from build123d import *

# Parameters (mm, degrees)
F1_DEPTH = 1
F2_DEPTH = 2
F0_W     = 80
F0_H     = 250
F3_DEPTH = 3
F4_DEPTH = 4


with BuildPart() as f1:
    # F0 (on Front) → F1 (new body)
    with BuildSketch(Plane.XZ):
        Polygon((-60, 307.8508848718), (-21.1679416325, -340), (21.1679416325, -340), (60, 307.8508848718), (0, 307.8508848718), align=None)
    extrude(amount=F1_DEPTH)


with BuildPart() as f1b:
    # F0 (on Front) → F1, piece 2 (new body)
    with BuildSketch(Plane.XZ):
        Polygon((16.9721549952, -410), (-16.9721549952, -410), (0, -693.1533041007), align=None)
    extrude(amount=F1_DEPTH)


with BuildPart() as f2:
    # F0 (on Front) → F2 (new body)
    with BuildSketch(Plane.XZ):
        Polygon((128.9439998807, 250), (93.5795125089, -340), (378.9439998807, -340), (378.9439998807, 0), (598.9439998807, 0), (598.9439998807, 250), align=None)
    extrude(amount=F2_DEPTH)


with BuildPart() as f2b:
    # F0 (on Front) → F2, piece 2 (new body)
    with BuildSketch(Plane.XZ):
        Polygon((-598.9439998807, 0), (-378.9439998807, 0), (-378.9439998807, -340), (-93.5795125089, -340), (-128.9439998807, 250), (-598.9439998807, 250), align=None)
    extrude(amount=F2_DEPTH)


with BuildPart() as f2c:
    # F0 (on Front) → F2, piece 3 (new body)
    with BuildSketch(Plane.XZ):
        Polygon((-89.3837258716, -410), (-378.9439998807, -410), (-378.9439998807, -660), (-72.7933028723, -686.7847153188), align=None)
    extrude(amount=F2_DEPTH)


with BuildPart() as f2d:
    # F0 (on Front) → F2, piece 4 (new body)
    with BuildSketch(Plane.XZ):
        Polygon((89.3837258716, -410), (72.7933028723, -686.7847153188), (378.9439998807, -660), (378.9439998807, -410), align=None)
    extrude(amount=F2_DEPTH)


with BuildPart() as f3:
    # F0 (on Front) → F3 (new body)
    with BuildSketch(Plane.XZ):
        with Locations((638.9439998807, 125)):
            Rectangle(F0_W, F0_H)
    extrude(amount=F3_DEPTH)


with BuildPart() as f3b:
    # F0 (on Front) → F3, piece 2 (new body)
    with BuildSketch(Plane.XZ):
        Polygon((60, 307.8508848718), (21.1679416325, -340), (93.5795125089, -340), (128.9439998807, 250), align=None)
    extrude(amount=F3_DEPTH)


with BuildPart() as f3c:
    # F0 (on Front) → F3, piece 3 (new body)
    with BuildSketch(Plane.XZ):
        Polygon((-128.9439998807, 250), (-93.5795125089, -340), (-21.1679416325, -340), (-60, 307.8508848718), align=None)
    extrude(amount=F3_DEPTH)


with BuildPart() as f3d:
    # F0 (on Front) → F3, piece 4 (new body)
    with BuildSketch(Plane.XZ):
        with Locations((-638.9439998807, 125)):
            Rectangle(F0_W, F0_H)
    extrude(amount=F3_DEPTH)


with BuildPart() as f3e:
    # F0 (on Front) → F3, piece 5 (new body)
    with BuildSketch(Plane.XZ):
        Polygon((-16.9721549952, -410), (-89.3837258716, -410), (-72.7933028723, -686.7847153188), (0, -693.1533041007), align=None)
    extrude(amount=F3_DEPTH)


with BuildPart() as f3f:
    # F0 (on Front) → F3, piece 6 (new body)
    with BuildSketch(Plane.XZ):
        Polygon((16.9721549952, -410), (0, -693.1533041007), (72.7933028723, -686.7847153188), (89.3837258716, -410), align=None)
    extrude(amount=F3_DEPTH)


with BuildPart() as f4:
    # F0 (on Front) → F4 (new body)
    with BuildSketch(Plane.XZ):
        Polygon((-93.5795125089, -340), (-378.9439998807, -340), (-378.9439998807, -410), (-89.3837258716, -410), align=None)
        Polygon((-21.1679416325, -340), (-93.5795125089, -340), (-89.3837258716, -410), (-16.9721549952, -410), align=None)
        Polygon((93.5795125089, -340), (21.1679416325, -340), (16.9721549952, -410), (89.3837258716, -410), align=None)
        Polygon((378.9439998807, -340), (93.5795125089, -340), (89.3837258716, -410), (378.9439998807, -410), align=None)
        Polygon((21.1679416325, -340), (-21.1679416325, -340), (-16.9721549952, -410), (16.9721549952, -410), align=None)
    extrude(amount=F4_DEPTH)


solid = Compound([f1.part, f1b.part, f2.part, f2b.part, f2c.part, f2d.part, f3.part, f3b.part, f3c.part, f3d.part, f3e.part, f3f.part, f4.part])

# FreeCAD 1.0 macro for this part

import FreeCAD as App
import Part
import Sketcher
from FreeCAD import Vector
Q = App.Units.Quantity

doc = App.newDocument("Part")
body = doc.addObject("PartDesign::Body", "Body")

# Sketch on XZ plane
sketch1 = body.newObject("Sketcher::SketchObject", "Sketch")
sketch1.AttachmentSupport = (doc.getObject("XZ_Plane"), [""])
sketch1.MapMode = "FlatFace"
sketch1.addGeometry([
    Part.LineSegment(Vector(-60, 308, 0), Vector(-21, -340, 0)),
    Part.LineSegment(Vector(-21, -340, 0), Vector(21, -340, 0)),
    Part.LineSegment(Vector(21, -340, 0), Vector(60, 308, 0)),
    Part.LineSegment(Vector(60, 308, 0), Vector(-60, 308, 0)),
], False)
sketch1.addConstraint([
    Sketcher.Constraint("Coincident", 0, 2, 1, 1),
    Sketcher.Constraint("Coincident", 1, 2, 2, 1),
    Sketcher.Constraint("Coincident", 2, 2, 3, 1),
    Sketcher.Constraint("Coincident", 3, 2, 0, 1),
    Sketcher.Constraint("Horizontal", 1),
    Sketcher.Constraint("Horizontal", 3),
    Sketcher.Constraint("Equal", 0, 2),
    Sketcher.Constraint("DistanceX", 3, 2, 3, 1, Q("120 mm")),
    Sketcher.Constraint("DistanceY", 0, 2, -1, 1, Q("340 mm")),
    Sketcher.Constraint("DistanceX", -1, 1, 2, 2, Q("60 mm")),
    Sketcher.Constraint("DistanceX", 1, 1, 1, 2, Q("42.335883 mm")),
    Sketcher.Constraint("Distance", 0, Q("649.013635 mm")),
])
pad1 = body.newObject("PartDesign::Pad", "Pad")
pad1.Profile = sketch1
pad1.Length = 1
body2 = doc.addObject("PartDesign::Body", "Body001")

# Sketch on XZ plane
sketch2 = body2.newObject("Sketcher::SketchObject", "Sketch001")
sketch2.AttachmentSupport = (doc.getObject("XZ_Plane001"), [""])
sketch2.MapMode = "FlatFace"
sketch2.addGeometry([
    Part.LineSegment(Vector(17, -410, 0), Vector(-17, -410, 0)),
    Part.LineSegment(Vector(-17, -410, 0), Vector(0, -693, 0)),
    Part.LineSegment(Vector(0, -693, 0), Vector(17, -410, 0)),
], False)
sketch2.addConstraint([
    Sketcher.Constraint("Coincident", 0, 2, 1, 1),
    Sketcher.Constraint("Coincident", 1, 2, 2, 1),
    Sketcher.Constraint("Coincident", 2, 2, 0, 1),
    Sketcher.Constraint("Horizontal", 0),
    Sketcher.Constraint("PointOnObject", 1, 2, -2),
    Sketcher.Constraint("Equal", 1, 2),
    Sketcher.Constraint("DistanceY", 0, 2, -1, 1, Q("410 mm")),
    Sketcher.Constraint("Distance", 1, Q("283.661502 mm")),
    Sketcher.Constraint("DistanceX", 0, 2, 0, 1, Q("33.94431 mm")),
])
pad2 = body2.newObject("PartDesign::Pad", "Pad001")
pad2.Profile = sketch2
pad2.Length = 1
body3 = doc.addObject("PartDesign::Body", "Body002")

# Sketch on XZ plane
sketch3 = body3.newObject("Sketcher::SketchObject", "Sketch002")
sketch3.AttachmentSupport = (doc.getObject("XZ_Plane002"), [""])
sketch3.MapMode = "FlatFace"
sketch3.addGeometry([
    Part.LineSegment(Vector(129, 250, 0), Vector(94, -340, 0)),  # 0
    Part.LineSegment(Vector(94, -340, 0), Vector(379, -340, 0)),  # 1
    Part.LineSegment(Vector(379, -340, 0), Vector(379, 0, 0)),  # 2
    Part.LineSegment(Vector(379, 0, 0), Vector(599, 0, 0)),  # 3
    Part.LineSegment(Vector(599, 0, 0), Vector(599, 250, 0)),  # 4
    Part.LineSegment(Vector(599, 250, 0), Vector(129, 250, 0)),  # 5
], False)
sketch3.addConstraint([
    Sketcher.Constraint("Coincident", 0, 2, 1, 1),
    Sketcher.Constraint("Coincident", 1, 2, 2, 1),
    Sketcher.Constraint("Coincident", 2, 2, 3, 1),
    Sketcher.Constraint("Coincident", 3, 2, 4, 1),
    Sketcher.Constraint("Coincident", 4, 2, 5, 1),
    Sketcher.Constraint("Coincident", 5, 2, 0, 1),
    Sketcher.Constraint("Horizontal", 1),
    Sketcher.Constraint("Vertical", 2),
    Sketcher.Constraint("Horizontal", 3),
    Sketcher.Constraint("Vertical", 4),
    Sketcher.Constraint("Horizontal", 5),
    Sketcher.Constraint("PointOnObject", 2, 2, -1),
    Sketcher.Constraint("DistanceX", 3, 1, 3, 2, Q("220 mm")),
    Sketcher.Constraint("DistanceX", 5, 2, 5, 1, Q("470 mm")),
    Sketcher.Constraint("DistanceY", 2, 1, 2, 2, Q("340 mm")),
    Sketcher.Constraint("DistanceY", 4, 1, 4, 2, Q("250 mm")),
    Sketcher.Constraint("DistanceX", -1, 1, 1, 2, Q("378.944 mm")),
    Sketcher.Constraint("Distance", 0, Q("591.05892 mm")),
])
pad3 = body3.newObject("PartDesign::Pad", "Pad002")
pad3.Profile = sketch3
pad3.Length = 2
body4 = doc.addObject("PartDesign::Body", "Body003")

# Sketch on XZ plane
sketch4 = body4.newObject("Sketcher::SketchObject", "Sketch003")
sketch4.AttachmentSupport = (doc.getObject("XZ_Plane003"), [""])
sketch4.MapMode = "FlatFace"
sketch4.addGeometry([
    Part.LineSegment(Vector(-599, 0, 0), Vector(-379, 0, 0)),  # 0
    Part.LineSegment(Vector(-379, 0, 0), Vector(-379, -340, 0)),  # 1
    Part.LineSegment(Vector(-379, -340, 0), Vector(-94, -340, 0)),  # 2
    Part.LineSegment(Vector(-94, -340, 0), Vector(-129, 250, 0)),  # 3
    Part.LineSegment(Vector(-129, 250, 0), Vector(-599, 250, 0)),  # 4
    Part.LineSegment(Vector(-599, 250, 0), Vector(-599, 0, 0)),  # 5
], False)
sketch4.addConstraint([
    Sketcher.Constraint("Coincident", 0, 2, 1, 1),
    Sketcher.Constraint("Coincident", 1, 2, 2, 1),
    Sketcher.Constraint("Coincident", 2, 2, 3, 1),
    Sketcher.Constraint("Coincident", 3, 2, 4, 1),
    Sketcher.Constraint("Coincident", 4, 2, 5, 1),
    Sketcher.Constraint("Coincident", 5, 2, 0, 1),
    Sketcher.Constraint("Horizontal", 0),
    Sketcher.Constraint("Vertical", 1),
    Sketcher.Constraint("Horizontal", 2),
    Sketcher.Constraint("Horizontal", 4),
    Sketcher.Constraint("Vertical", 5),
    Sketcher.Constraint("PointOnObject", 0, 2, -1),
    Sketcher.Constraint("DistanceX", 0, 1, 0, 2, Q("220 mm")),
    Sketcher.Constraint("DistanceX", 4, 2, 4, 1, Q("470 mm")),
    Sketcher.Constraint("DistanceY", 1, 2, 1, 1, Q("340 mm")),
    Sketcher.Constraint("DistanceY", 5, 2, 5, 1, Q("250 mm")),
    Sketcher.Constraint("DistanceX", 0, 2, -1, 1, Q("378.944 mm")),
    Sketcher.Constraint("Distance", 3, Q("591.05892 mm")),
])
pad4 = body4.newObject("PartDesign::Pad", "Pad003")
pad4.Profile = sketch4
pad4.Length = 2
body5 = doc.addObject("PartDesign::Body", "Body004")

# Sketch on XZ plane
sketch5 = body5.newObject("Sketcher::SketchObject", "Sketch004")
sketch5.AttachmentSupport = (doc.getObject("XZ_Plane004"), [""])
sketch5.MapMode = "FlatFace"
sketch5.addGeometry([
    Part.LineSegment(Vector(-89, -410, 0), Vector(-379, -410, 0)),
    Part.LineSegment(Vector(-379, -410, 0), Vector(-379, -660, 0)),
    Part.LineSegment(Vector(-379, -660, 0), Vector(-73, -687, 0)),
    Part.LineSegment(Vector(-73, -687, 0), Vector(-89, -410, 0)),
], False)
sketch5.addConstraint([
    Sketcher.Constraint("Coincident", 0, 2, 1, 1),
    Sketcher.Constraint("Coincident", 1, 2, 2, 1),
    Sketcher.Constraint("Coincident", 2, 2, 3, 1),
    Sketcher.Constraint("Coincident", 3, 2, 0, 1),
    Sketcher.Constraint("Horizontal", 0),
    Sketcher.Constraint("Vertical", 1),
    Sketcher.Constraint("DistanceY", 1, 2, 1, 1, Q("250 mm")),
    Sketcher.Constraint("Angle", 2, Q("-5 deg")),
    Sketcher.Constraint("DistanceY", 0, 2, -1, 1, Q("410 mm")),
    Sketcher.Constraint("DistanceX", 0, 2, -1, 1, Q("378.944 mm")),
    Sketcher.Constraint("DistanceX", 0, 2, 0, 1, Q("289.560274 mm")),
    Sketcher.Constraint("Distance", 2, Q("307.320143 mm")),
])
pad5 = body5.newObject("PartDesign::Pad", "Pad004")
pad5.Profile = sketch5
pad5.Length = 2
body6 = doc.addObject("PartDesign::Body", "Body005")

# Sketch on XZ plane
sketch6 = body6.newObject("Sketcher::SketchObject", "Sketch005")
sketch6.AttachmentSupport = (doc.getObject("XZ_Plane005"), [""])
sketch6.MapMode = "FlatFace"
sketch6.addGeometry([
    Part.LineSegment(Vector(89, -410, 0), Vector(73, -687, 0)),
    Part.LineSegment(Vector(73, -687, 0), Vector(379, -660, 0)),
    Part.LineSegment(Vector(379, -660, 0), Vector(379, -410, 0)),
    Part.LineSegment(Vector(379, -410, 0), Vector(89, -410, 0)),
], False)
sketch6.addConstraint([
    Sketcher.Constraint("Coincident", 0, 2, 1, 1),
    Sketcher.Constraint("Coincident", 1, 2, 2, 1),
    Sketcher.Constraint("Coincident", 2, 2, 3, 1),
    Sketcher.Constraint("Coincident", 3, 2, 0, 1),
    Sketcher.Constraint("Vertical", 2),
    Sketcher.Constraint("Horizontal", 3),
    Sketcher.Constraint("DistanceY", 2, 1, 2, 2, Q("250 mm")),
    Sketcher.Constraint("Angle", 1, Q("5 deg")),
    Sketcher.Constraint("DistanceY", 1, 2, -1, 1, Q("660 mm")),
    Sketcher.Constraint("DistanceX", -1, 1, 1, 2, Q("378.944 mm")),
    Sketcher.Constraint("DistanceX", 3, 2, 3, 1, Q("289.560274 mm")),
    Sketcher.Constraint("Distance", 0, Q("277.281483 mm")),
])
pad6 = body6.newObject("PartDesign::Pad", "Pad005")
pad6.Profile = sketch6
pad6.Length = 2
body7 = doc.addObject("PartDesign::Body", "Body006")

# Sketch on XZ plane
sketch7 = body7.newObject("Sketcher::SketchObject", "Sketch006")
sketch7.AttachmentSupport = (doc.getObject("XZ_Plane006"), [""])
sketch7.MapMode = "FlatFace"
sketch7.addGeometry([
    Part.LineSegment(Vector(599, 250, 0), Vector(599, 0, 0)),
    Part.LineSegment(Vector(599, 0, 0), Vector(679, 0, 0)),
    Part.LineSegment(Vector(679, 0, 0), Vector(679, 250, 0)),
    Part.LineSegment(Vector(679, 250, 0), Vector(599, 250, 0)),
], False)
sketch7.addConstraint([
    Sketcher.Constraint("Coincident", 0, 2, 1, 1),
    Sketcher.Constraint("Coincident", 1, 2, 2, 1),
    Sketcher.Constraint("Coincident", 2, 2, 3, 1),
    Sketcher.Constraint("Coincident", 3, 2, 0, 1),
    Sketcher.Constraint("Vertical", 0),
    Sketcher.Constraint("Horizontal", 1),
    Sketcher.Constraint("Vertical", 2),
    Sketcher.Constraint("Horizontal", 3),
    Sketcher.Constraint("PointOnObject", 0, 2, -1),
    Sketcher.Constraint("DistanceX", 1, 1, 1, 2, Q("80 mm")),
    Sketcher.Constraint("DistanceY", 0, 2, 0, 1, Q("250 mm")),
    Sketcher.Constraint("DistanceX", -1, 1, 0, 2, Q("598.944 mm")),
])
pad7 = body7.newObject("PartDesign::Pad", "Pad006")
pad7.Profile = sketch7
pad7.Length = 3
body8 = doc.addObject("PartDesign::Body", "Body007")

# Sketch on XZ plane
sketch8 = body8.newObject("Sketcher::SketchObject", "Sketch007")
sketch8.AttachmentSupport = (doc.getObject("XZ_Plane007"), [""])
sketch8.MapMode = "FlatFace"
sketch8.addGeometry([
    Part.LineSegment(Vector(60, 308, 0), Vector(21, -340, 0)),
    Part.LineSegment(Vector(21, -340, 0), Vector(94, -340, 0)),
    Part.LineSegment(Vector(94, -340, 0), Vector(129, 250, 0)),
    Part.LineSegment(Vector(129, 250, 0), Vector(60, 308, 0)),
], False)
sketch8.addConstraint([
    Sketcher.Constraint("Coincident", 0, 2, 1, 1),
    Sketcher.Constraint("Coincident", 1, 2, 2, 1),
    Sketcher.Constraint("Coincident", 2, 2, 3, 1),
    Sketcher.Constraint("Coincident", 3, 2, 0, 1),
    Sketcher.Constraint("Horizontal", 1),
    Sketcher.Constraint("Parallel", 0, 2),
    Sketcher.Constraint("Angle", 3, Q("140 deg")),
    Sketcher.Constraint("Distance", 3, Q("90 mm")),
    Sketcher.Constraint("DistanceY", 0, 2, -1, 1, Q("340 mm")),
    Sketcher.Constraint("DistanceY", -1, 1, 2, 2, Q("250 mm")),
    Sketcher.Constraint("DistanceX", -1, 1, 3, 2, Q("60 mm")),
    Sketcher.Constraint("DistanceX", 1, 1, 1, 2, Q("72.411571 mm")),
])
pad8 = body8.newObject("PartDesign::Pad", "Pad007")
pad8.Profile = sketch8
pad8.Length = 3
body9 = doc.addObject("PartDesign::Body", "Body008")

# Sketch on XZ plane
sketch9 = body9.newObject("Sketcher::SketchObject", "Sketch008")
sketch9.AttachmentSupport = (doc.getObject("XZ_Plane008"), [""])
sketch9.MapMode = "FlatFace"
sketch9.addGeometry([
    Part.LineSegment(Vector(-129, 250, 0), Vector(-94, -340, 0)),
    Part.LineSegment(Vector(-94, -340, 0), Vector(-21, -340, 0)),
    Part.LineSegment(Vector(-21, -340, 0), Vector(-60, 308, 0)),
    Part.LineSegment(Vector(-60, 308, 0), Vector(-129, 250, 0)),
], False)
sketch9.addConstraint([
    Sketcher.Constraint("Coincident", 0, 2, 1, 1),
    Sketcher.Constraint("Coincident", 1, 2, 2, 1),
    Sketcher.Constraint("Coincident", 2, 2, 3, 1),
    Sketcher.Constraint("Coincident", 3, 2, 0, 1),
    Sketcher.Constraint("Horizontal", 1),
    Sketcher.Constraint("Parallel", 0, 2),
    Sketcher.Constraint("Angle", 3, Q("-140 deg")),
    Sketcher.Constraint("Distance", 3, Q("90 mm")),
    Sketcher.Constraint("DistanceY", 0, 2, -1, 1, Q("340 mm")),
    Sketcher.Constraint("DistanceX", 2, 2, -1, 1, Q("60 mm")),
    Sketcher.Constraint("DistanceY", -1, 1, 3, 2, Q("250 mm")),
    Sketcher.Constraint("DistanceX", 1, 1, 1, 2, Q("72.411571 mm")),
])
pad9 = body9.newObject("PartDesign::Pad", "Pad008")
pad9.Profile = sketch9
pad9.Length = 3
body10 = doc.addObject("PartDesign::Body", "Body009")

# Sketch on XZ plane
sketch10 = body10.newObject("Sketcher::SketchObject", "Sketch009")
sketch10.AttachmentSupport = (doc.getObject("XZ_Plane009"), [""])
sketch10.MapMode = "FlatFace"
sketch10.addGeometry([
    Part.LineSegment(Vector(-679, 250, 0), Vector(-679, 0, 0)),
    Part.LineSegment(Vector(-679, 0, 0), Vector(-599, 0, 0)),
    Part.LineSegment(Vector(-599, 0, 0), Vector(-599, 250, 0)),
    Part.LineSegment(Vector(-599, 250, 0), Vector(-679, 250, 0)),
], False)
sketch10.addConstraint([
    Sketcher.Constraint("Coincident", 0, 2, 1, 1),
    Sketcher.Constraint("Coincident", 1, 2, 2, 1),
    Sketcher.Constraint("Coincident", 2, 2, 3, 1),
    Sketcher.Constraint("Coincident", 3, 2, 0, 1),
    Sketcher.Constraint("Vertical", 0),
    Sketcher.Constraint("Horizontal", 1),
    Sketcher.Constraint("Vertical", 2),
    Sketcher.Constraint("Horizontal", 3),
    Sketcher.Constraint("PointOnObject", 0, 2, -1),
    Sketcher.Constraint("DistanceX", 1, 1, 1, 2, Q("80 mm")),
    Sketcher.Constraint("DistanceY", 0, 2, 0, 1, Q("250 mm")),
    Sketcher.Constraint("DistanceX", 0, 2, -1, 1, Q("678.944 mm")),
])
pad10 = body10.newObject("PartDesign::Pad", "Pad009")
pad10.Profile = sketch10
pad10.Length = 3
body11 = doc.addObject("PartDesign::Body", "Body010")

# Sketch on XZ plane
sketch11 = body11.newObject("Sketcher::SketchObject", "Sketch010")
sketch11.AttachmentSupport = (doc.getObject("XZ_Plane010"), [""])
sketch11.MapMode = "FlatFace"
sketch11.addGeometry([
    Part.LineSegment(Vector(-16.972155, -410, 0), Vector(-89.383726, -410, 0)),
    Part.LineSegment(Vector(-89.383726, -410, 0), Vector(-72.793303, -686.784715, 0)),
    Part.LineSegment(Vector(-72.793303, -686.784715, 0), Vector(0, -693.153304, 0)),
    Part.LineSegment(Vector(0, -693.153304, 0), Vector(-16.972155, -410, 0)),
], False)
sketch11.addConstraint([
    Sketcher.Constraint("Coincident", 0, 2, 1, 1),
    Sketcher.Constraint("Coincident", 1, 2, 2, 1),
    Sketcher.Constraint("Coincident", 2, 2, 3, 1),
    Sketcher.Constraint("Coincident", 3, 2, 0, 1),
    Sketcher.Constraint("Horizontal", 0),
    Sketcher.Constraint("PointOnObject", 2, 2, -2),
    Sketcher.Constraint("DistanceY", 0, 2, -1, 1, Q("410 mm")),
    Sketcher.Constraint("Distance", 3, Q("283.661502 mm")),
    Sketcher.Constraint("DistanceX", 0, 2, 0, 1, Q("72.411571 mm")),
    Sketcher.Constraint("Distance", 2, Q("73.071361 mm")),
    Sketcher.Constraint("DistanceY", 2, 2, 1, 2, Q("6.368589 mm")),
    Sketcher.Constraint("DistanceX", 0, 2, -1, 1, Q("89.383726 mm")),
])
pad11 = body11.newObject("PartDesign::Pad", "Pad010")
pad11.Profile = sketch11
pad11.Length = 3
body12 = doc.addObject("PartDesign::Body", "Body011")

# Sketch on XZ plane
sketch12 = body12.newObject("Sketcher::SketchObject", "Sketch011")
sketch12.AttachmentSupport = (doc.getObject("XZ_Plane011"), [""])
sketch12.MapMode = "FlatFace"
sketch12.addGeometry([
    Part.LineSegment(Vector(16.972155, -410, 0), Vector(0, -693.153304, 0)),
    Part.LineSegment(Vector(0, -693.153304, 0), Vector(72.793303, -686.784715, 0)),
    Part.LineSegment(Vector(72.793303, -686.784715, 0), Vector(89.383726, -410, 0)),
    Part.LineSegment(Vector(89.383726, -410, 0), Vector(16.972155, -410, 0)),
], False)
sketch12.addConstraint([
    Sketcher.Constraint("Coincident", 0, 2, 1, 1),
    Sketcher.Constraint("Coincident", 1, 2, 2, 1),
    Sketcher.Constraint("Coincident", 2, 2, 3, 1),
    Sketcher.Constraint("Coincident", 3, 2, 0, 1),
    Sketcher.Constraint("Horizontal", 3),
    Sketcher.Constraint("PointOnObject", 0, 2, -2),
    Sketcher.Constraint("DistanceY", 2, 2, -1, 1, Q("410 mm")),
    Sketcher.Constraint("Distance", 0, Q("283.661502 mm")),
    Sketcher.Constraint("DistanceX", 3, 2, 3, 1, Q("72.411571 mm")),
    Sketcher.Constraint("Distance", 1, Q("73.071361 mm")),
    Sketcher.Constraint("DistanceY", 0, 2, 1, 2, Q("6.368589 mm")),
    Sketcher.Constraint("DistanceY", 0, 2, -1, 1, Q("693.153304 mm")),
])
pad12 = body12.newObject("PartDesign::Pad", "Pad011")
pad12.Profile = sketch12
pad12.Length = 3
body13 = doc.addObject("PartDesign::Body", "Body012")

# Sketch on XZ plane
sketch13 = body13.newObject("Sketcher::SketchObject", "Sketch012")
sketch13.AttachmentSupport = (doc.getObject("XZ_Plane012"), [""])
sketch13.MapMode = "FlatFace"
sketch13.addGeometry([
    Part.LineSegment(Vector(-379, -340, 0), Vector(-379, -410, 0)),
    Part.LineSegment(Vector(-379, -410, 0), Vector(379, -410, 0)),
    Part.LineSegment(Vector(379, -410, 0), Vector(379, -340, 0)),
    Part.LineSegment(Vector(379, -340, 0), Vector(-379, -340, 0)),
], False)
sketch13.addConstraint([
    Sketcher.Constraint("Coincident", 0, 2, 1, 1),
    Sketcher.Constraint("Coincident", 1, 2, 2, 1),
    Sketcher.Constraint("Coincident", 2, 2, 3, 1),
    Sketcher.Constraint("Coincident", 3, 2, 0, 1),
    Sketcher.Constraint("Vertical", 0),
    Sketcher.Constraint("Horizontal", 1),
    Sketcher.Constraint("Vertical", 2),
    Sketcher.Constraint("Horizontal", 3),
    Sketcher.Constraint("DistanceY", 0, 2, 0, 1, Q("70 mm")),
    Sketcher.Constraint("DistanceY", 0, 2, -1, 1, Q("410 mm")),
    Sketcher.Constraint("DistanceX", 1, 1, 1, 2, Q("757.888 mm")),
    Sketcher.Constraint("DistanceX", 0, 2, -1, 1, Q("378.944 mm")),
])
pad13 = body13.newObject("PartDesign::Pad", "Pad012")
pad13.Profile = sketch13
pad13.Length = 4

doc.recompute()
